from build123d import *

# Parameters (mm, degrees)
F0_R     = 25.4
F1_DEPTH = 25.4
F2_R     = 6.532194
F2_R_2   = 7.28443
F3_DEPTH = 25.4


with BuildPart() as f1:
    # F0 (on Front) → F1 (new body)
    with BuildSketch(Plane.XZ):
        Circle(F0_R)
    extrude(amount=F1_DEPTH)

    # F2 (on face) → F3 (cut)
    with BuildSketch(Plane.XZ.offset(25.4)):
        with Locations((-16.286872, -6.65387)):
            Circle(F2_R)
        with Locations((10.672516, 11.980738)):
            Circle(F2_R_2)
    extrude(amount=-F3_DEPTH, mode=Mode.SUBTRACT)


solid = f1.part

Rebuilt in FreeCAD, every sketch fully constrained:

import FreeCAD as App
import Part
import Sketcher

V = App.Vector
Q = App.Units.Quantity

doc = App.newDocument("Part")
body = doc.addObject("PartDesign::Body", "Body")

# Sketch on XZ plane
sketch1 = doc.addObject("Sketcher::SketchObject", "Sketch")
body.addObject(sketch1)
sketch1.AttachmentSupport = (doc.XZ_Plane, [""])
sketch1.MapMode = "FlatFace"
sketch1.addGeometry(Part.Circle(V(0, 0, 0), V(0, 0, 1), 25.4), False)
sketch1.addConstraint([
    Sketcher.Constraint("Coincident", 0, 3, -1, 1),
    Sketcher.Constraint("Diameter", 0, Q("2 in")),
])
pad1 = doc.addObject("PartDesign::Pad", "Pad")
body.addObject(pad1)
pad1.Profile = sketch1
pad1.Length = Q("1 in")

# Sketch on XZ plane
sketch2 = doc.addObject("Sketcher::SketchObject", "Sketch001")
body.addObject(sketch2)
sketch2.AttachmentSupport = (doc.XZ_Plane, [""])
sketch2.MapMode = "FlatFace"
sketch2.AttachmentOffset = App.Placement(V(0, 0, 1 * 25.4), App.Rotation())
sketch2.addGeometry([
    Part.Circle(V(-16.286872, -6.65387, 0), V(0, 0, 1), 6.532194),
    Part.Circle(V(10.672516, 11.980738, 0), V(0, 0, 1), 7.28443),
], False)
sketch2.addConstraint([
    Sketcher.Constraint("Diameter", 1, 14.56886),
    Sketcher.Constraint("Diameter", 0, 13.064388),
    Sketcher.Constraint("DistanceX", 0, 3, -1, 1, 16.286872),
    Sketcher.Constraint("DistanceY", 0, 3, -1, 1, 6.65387),
    Sketcher.Constraint("DistanceY", 0, 3, 1, 3, 18.634608),
    Sketcher.Constraint("DistanceX", -1, 1, 1, 3, 10.672516),
])
pocket1 = doc.addObject("PartDesign::Pocket", "Pocket")
body.addObject(pocket1)
pocket1.Profile = sketch2
pocket1.Length = Q("1 in")

doc.recompute()
